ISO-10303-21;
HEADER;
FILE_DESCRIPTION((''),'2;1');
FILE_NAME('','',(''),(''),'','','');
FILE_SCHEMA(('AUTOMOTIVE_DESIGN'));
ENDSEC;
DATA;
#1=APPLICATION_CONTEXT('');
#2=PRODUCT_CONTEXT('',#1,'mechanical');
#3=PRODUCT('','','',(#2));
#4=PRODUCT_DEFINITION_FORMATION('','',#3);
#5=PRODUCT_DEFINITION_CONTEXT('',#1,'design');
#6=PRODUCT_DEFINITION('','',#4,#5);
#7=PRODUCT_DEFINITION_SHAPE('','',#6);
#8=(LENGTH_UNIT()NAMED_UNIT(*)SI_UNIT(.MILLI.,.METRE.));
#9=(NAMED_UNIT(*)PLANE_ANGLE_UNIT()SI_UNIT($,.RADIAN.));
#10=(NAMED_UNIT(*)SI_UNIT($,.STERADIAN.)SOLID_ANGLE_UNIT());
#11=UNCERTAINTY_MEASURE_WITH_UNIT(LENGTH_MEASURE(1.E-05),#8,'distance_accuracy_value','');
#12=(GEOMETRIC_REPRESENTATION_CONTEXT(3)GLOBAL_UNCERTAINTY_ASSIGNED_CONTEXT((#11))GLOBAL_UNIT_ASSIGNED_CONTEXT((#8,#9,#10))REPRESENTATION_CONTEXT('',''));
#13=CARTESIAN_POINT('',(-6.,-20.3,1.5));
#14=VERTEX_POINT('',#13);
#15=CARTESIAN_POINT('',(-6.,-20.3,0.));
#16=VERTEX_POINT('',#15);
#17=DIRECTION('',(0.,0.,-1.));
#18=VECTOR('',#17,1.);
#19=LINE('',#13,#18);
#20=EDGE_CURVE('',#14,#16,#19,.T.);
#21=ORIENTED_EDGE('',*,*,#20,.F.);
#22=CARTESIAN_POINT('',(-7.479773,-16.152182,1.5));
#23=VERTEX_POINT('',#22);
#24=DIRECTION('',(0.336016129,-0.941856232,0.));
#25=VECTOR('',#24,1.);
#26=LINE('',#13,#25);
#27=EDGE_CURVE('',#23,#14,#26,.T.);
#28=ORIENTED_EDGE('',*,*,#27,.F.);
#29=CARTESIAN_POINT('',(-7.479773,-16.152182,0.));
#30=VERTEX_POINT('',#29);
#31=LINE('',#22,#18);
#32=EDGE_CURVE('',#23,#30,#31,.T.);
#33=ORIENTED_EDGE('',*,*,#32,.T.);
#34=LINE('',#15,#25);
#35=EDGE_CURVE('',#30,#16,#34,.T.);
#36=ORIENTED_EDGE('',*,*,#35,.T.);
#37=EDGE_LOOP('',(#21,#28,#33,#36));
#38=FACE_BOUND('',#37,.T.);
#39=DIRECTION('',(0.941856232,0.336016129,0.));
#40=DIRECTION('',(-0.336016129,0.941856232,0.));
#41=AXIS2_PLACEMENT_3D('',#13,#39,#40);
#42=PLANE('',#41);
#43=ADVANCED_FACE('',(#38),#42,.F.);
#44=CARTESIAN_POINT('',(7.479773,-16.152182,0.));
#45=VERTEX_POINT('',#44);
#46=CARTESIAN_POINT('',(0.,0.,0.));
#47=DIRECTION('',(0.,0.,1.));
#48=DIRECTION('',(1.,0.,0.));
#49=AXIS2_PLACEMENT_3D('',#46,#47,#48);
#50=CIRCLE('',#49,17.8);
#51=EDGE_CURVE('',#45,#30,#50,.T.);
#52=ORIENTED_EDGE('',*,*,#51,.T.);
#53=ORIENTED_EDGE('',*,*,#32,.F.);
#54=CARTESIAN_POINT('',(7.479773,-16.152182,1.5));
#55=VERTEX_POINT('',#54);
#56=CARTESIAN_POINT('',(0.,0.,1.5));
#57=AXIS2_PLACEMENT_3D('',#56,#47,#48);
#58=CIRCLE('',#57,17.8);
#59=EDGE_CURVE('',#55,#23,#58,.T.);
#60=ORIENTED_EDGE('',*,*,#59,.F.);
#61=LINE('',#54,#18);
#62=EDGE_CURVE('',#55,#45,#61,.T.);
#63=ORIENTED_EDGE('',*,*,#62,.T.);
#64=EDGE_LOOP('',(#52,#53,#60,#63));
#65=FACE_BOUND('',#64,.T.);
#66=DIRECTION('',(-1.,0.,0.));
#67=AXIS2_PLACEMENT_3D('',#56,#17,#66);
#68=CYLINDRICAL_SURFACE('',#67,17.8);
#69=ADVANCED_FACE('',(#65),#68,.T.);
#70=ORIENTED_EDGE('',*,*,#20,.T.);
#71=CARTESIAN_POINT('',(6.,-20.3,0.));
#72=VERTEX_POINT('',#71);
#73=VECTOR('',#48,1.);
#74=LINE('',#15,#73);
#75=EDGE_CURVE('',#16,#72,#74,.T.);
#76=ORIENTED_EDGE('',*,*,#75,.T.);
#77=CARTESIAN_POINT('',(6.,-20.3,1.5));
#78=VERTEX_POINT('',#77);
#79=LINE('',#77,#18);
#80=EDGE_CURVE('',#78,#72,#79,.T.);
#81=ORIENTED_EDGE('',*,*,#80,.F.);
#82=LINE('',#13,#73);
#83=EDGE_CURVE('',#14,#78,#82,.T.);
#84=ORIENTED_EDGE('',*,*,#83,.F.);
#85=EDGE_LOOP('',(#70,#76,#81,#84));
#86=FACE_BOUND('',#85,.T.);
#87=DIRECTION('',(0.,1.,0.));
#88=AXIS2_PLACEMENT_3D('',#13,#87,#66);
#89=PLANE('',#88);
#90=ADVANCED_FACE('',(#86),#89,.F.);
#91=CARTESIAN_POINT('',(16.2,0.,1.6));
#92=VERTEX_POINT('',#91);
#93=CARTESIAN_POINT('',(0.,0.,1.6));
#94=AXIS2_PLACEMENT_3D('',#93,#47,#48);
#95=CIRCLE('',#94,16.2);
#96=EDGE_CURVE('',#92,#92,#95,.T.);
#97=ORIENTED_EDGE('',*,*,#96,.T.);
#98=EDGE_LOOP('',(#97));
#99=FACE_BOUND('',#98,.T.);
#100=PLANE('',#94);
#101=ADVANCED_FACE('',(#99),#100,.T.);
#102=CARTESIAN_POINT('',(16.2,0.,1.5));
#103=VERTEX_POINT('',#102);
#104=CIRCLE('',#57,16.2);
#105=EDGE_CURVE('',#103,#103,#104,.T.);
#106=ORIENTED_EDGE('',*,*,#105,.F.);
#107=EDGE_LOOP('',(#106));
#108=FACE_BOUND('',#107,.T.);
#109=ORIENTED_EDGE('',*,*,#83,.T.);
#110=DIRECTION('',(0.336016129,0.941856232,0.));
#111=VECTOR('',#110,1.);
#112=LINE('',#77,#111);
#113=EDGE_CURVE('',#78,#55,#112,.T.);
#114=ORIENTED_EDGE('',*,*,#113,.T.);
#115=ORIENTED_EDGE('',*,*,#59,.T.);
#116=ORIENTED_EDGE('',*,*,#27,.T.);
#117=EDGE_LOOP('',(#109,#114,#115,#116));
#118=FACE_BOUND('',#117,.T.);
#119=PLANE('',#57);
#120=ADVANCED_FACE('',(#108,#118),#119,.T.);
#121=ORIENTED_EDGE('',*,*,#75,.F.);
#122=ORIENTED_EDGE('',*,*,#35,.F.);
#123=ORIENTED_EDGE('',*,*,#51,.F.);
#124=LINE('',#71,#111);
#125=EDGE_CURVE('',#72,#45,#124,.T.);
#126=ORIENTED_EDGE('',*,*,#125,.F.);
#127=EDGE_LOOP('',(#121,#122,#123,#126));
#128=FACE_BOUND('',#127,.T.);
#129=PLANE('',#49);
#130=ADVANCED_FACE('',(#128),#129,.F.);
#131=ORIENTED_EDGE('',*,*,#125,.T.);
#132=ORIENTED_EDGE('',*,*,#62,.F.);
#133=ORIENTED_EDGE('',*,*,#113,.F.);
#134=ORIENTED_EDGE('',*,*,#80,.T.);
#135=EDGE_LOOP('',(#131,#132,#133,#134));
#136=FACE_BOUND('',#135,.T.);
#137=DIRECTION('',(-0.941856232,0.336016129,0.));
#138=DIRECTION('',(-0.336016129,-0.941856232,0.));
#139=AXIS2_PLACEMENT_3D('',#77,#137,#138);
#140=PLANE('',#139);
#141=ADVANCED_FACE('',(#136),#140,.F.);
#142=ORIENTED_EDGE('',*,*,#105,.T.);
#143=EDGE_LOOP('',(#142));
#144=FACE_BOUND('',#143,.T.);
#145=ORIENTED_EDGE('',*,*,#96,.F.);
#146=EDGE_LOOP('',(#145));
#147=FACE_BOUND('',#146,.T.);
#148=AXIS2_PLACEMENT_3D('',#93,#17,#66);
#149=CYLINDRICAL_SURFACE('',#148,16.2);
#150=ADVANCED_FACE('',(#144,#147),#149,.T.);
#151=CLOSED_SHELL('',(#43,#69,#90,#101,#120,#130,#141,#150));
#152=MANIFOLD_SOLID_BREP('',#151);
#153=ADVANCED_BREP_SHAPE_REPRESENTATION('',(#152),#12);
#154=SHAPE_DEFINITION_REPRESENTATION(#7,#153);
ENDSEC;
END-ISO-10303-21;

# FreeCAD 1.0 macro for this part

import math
import FreeCAD as App
import Part
import Sketcher
from FreeCAD import Vector

doc = App.newDocument("Part")
params = doc.addObject("Spreadsheet::Sheet", "Params")
for row, (alias, value) in enumerate([
    ("sketch1_radius", "17.8 mm"),
    ("sketch1_width", "12 mm"),
    ("pad1_length", "1.5 mm"),
    ("sketch2_diameter", "32.4 mm"),
    ("pad2_length", "0.1 mm"),
], start=1):
    params.set(f"A{row}", alias)
    params.set(f"B{row}", "=" + value)
    params.setAlias(f"B{row}", alias)

body = doc.addObject("PartDesign::Body", "Body")

# Sketch on XY plane
sketch1 = body.newObject("Sketcher::SketchObject", "Sketch")
sketch1.AttachmentSupport = (doc.getObject("XY_Plane"), [""])
sketch1.MapMode = "FlatFace"
sketch1.addGeometry([
    Part.LineSegment(Vector(-6, -20.3, 0), Vector(6, -20.3, 0)),
    Part.LineSegment(Vector(6, -20.3, 0), Vector(7.5, -16.2, 0)),
    Part.ArcOfCircle(Part.Circle(Vector(0, 0, 0), Vector(0, 0, 1), 17.8), math.radians(-65), math.radians(245)),
    Part.LineSegment(Vector(-7.5, -16.2, 0), Vector(-6, -20.3, 0)),
], False)
sketch1.addConstraint([
    Sketcher.Constraint("Coincident", 0, 2, 1, 1),
    Sketcher.Constraint("Coincident", 1, 2, 2, 1),
    Sketcher.Constraint("Coincident", 2, 2, 3, 1),
    Sketcher.Constraint("Coincident", 3, 2, 0, 1),
    Sketcher.Constraint("Horizontal", 0),
    Sketcher.Constraint("Coincident", 2, 3, -1, 1),
    Sketcher.Constraint("Horizontal", 1, 2, 2, 2),
    Sketcher.Constraint("Equal", 1, 3),
    Sketcher.Constraint("Radius", 2, 17.8),
    Sketcher.Constraint("DistanceX", 0, 1, 0, 2, 12.0),
    Sketcher.Constraint("DistanceY", 0, 2, -1, 1, 20.3),
    Sketcher.Constraint("Distance", 1, 4.403876),
])
sketch1.setExpression("Constraints[8]", "Params.sketch1_radius")
sketch1.setExpression("Constraints[9]", "Params.sketch1_width")
pad1 = body.newObject("PartDesign::Pad", "Pad")
pad1.Profile = sketch1
pad1.setExpression("Length", "Params.pad1_length")

# Sketch on XY plane
sketch2 = body.newObject("Sketcher::SketchObject", "Sketch001")
sketch2.AttachmentSupport = (doc.getObject("XY_Plane"), [""])
sketch2.MapMode = "FlatFace"
sketch2.AttachmentOffset = App.Placement(Vector(0, 0, 1.5), App.Rotation())
sketch2.addGeometry(Part.Circle(Vector(0, 0, 0), Vector(0, 0, 1), 16), False)
sketch2.addConstraint([
    Sketcher.Constraint("Coincident", 0, 3, -1, 1),
    Sketcher.Constraint("Diameter", 0, 32.4),
])
sketch2.setExpression("Constraints[1]", "Params.sketch2_diameter")
pad2 = body.newObject("PartDesign::Pad", "Pad001")
pad2.Profile = sketch2
pad2.setExpression("Length", "Params.pad2_length")

doc.recompute()
